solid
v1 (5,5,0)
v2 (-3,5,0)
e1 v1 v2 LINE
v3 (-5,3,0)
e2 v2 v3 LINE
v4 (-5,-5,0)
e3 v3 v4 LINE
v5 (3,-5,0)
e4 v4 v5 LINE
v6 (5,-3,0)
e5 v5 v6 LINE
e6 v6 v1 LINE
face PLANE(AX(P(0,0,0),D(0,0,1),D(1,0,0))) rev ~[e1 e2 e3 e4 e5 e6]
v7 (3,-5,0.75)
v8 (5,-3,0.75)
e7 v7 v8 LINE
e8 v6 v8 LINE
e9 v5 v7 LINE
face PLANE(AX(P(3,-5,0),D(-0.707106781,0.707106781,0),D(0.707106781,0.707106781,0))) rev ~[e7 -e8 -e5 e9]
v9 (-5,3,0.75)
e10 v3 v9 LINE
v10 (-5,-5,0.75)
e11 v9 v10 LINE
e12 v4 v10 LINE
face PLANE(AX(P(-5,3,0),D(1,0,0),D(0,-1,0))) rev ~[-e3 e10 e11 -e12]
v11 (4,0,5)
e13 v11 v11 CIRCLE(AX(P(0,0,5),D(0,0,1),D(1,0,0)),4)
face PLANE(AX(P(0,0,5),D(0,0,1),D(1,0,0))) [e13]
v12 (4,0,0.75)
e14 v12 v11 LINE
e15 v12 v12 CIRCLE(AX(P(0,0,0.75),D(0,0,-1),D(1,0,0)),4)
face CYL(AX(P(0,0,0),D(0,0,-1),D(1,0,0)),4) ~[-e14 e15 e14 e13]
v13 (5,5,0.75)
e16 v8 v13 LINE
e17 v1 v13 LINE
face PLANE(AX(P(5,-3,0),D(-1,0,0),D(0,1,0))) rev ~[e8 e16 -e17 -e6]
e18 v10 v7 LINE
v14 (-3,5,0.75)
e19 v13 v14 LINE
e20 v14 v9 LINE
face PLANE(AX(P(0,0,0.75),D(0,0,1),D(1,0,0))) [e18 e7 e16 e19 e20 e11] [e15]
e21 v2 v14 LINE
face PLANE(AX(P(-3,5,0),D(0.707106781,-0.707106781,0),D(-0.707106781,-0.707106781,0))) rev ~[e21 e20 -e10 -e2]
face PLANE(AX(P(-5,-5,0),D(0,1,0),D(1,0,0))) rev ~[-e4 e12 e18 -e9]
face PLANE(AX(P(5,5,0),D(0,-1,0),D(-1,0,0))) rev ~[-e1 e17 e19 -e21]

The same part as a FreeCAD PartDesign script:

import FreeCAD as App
import Part
import Sketcher
Q = App.Units.Quantity

doc = App.newDocument("Part")
body = doc.addObject("PartDesign::Body", "Body")

# Sketch on XY plane
sketch1 = doc.addObject("Sketcher::SketchObject", "Sketch")
body.addObject(sketch1)
sketch1.AttachmentSupport = (doc.XY_Plane, [""])
sketch1.MapMode = "FlatFace"
sketch1.addGeometry([
    Part.LineSegment(App.Vector(-5, -5, 0), App.Vector(3, -5, 0)),  # 0
    Part.LineSegment(App.Vector(3, -5, 0), App.Vector(5, -3, 0)),  # 1
    Part.LineSegment(App.Vector(5, -3, 0), App.Vector(5, 5, 0)),  # 2
    Part.LineSegment(App.Vector(5, 5, 0), App.Vector(-3, 5, 0)),  # 3
    Part.LineSegment(App.Vector(-3, 5, 0), App.Vector(-5, 3, 0)),  # 4
    Part.LineSegment(App.Vector(-5, 3, 0), App.Vector(-5, -5, 0)),  # 5
], False)
sketch1.addConstraint([
    Sketcher.Constraint("Coincident", 0, 2, 1, 1),
    Sketcher.Constraint("Coincident", 1, 2, 2, 1),
    Sketcher.Constraint("Coincident", 2, 2, 3, 1),
    Sketcher.Constraint("Coincident", 3, 2, 4, 1),
    Sketcher.Constraint("Coincident", 4, 2, 5, 1),
    Sketcher.Constraint("Coincident", 5, 2, 0, 1),
    Sketcher.Constraint("Horizontal", 0),
    Sketcher.Constraint("Vertical", 2),
    Sketcher.Constraint("Horizontal", 3),
    Sketcher.Constraint("Vertical", 5),
    Sketcher.Constraint("Symmetric", 0, 2, 3, 2, -1, 1),
    Sketcher.Constraint("Symmetric", 1, 2, 4, 2, -1, 1),
    Sketcher.Constraint("Equal", 3, 2),
    Sketcher.Constraint("DistanceX", 0, 1, 0, 2, 8.0),
    Sketcher.Constraint("Angle", 1, Q("45 deg")),
    Sketcher.Constraint("DistanceX", -1, 1, 0, 2, 3.0),
])
pad1 = doc.addObject("PartDesign::Pad", "Pad")
body.addObject(pad1)
pad1.Profile = sketch1
pad1.Length = 0.75

# Sketch on XY plane
sketch2 = doc.addObject("Sketcher::SketchObject", "Sketch001")
body.addObject(sketch2)
sketch2.AttachmentSupport = (doc.XY_Plane, [""])
sketch2.MapMode = "FlatFace"
sketch2.addGeometry(Part.Circle(App.Vector(0, 0, 0), App.Vector(0, 0, 1), 4), False)
sketch2.addConstraint([
    Sketcher.Constraint("Coincident", 0, 3, -1, 1),
    Sketcher.Constraint("Diameter", 0, 8.0),
])
pad2 = doc.addObject("PartDesign::Pad", "Pad001")
body.addObject(pad2)
pad2.Profile = sketch2
pad2.Length = 5

doc.recompute()
